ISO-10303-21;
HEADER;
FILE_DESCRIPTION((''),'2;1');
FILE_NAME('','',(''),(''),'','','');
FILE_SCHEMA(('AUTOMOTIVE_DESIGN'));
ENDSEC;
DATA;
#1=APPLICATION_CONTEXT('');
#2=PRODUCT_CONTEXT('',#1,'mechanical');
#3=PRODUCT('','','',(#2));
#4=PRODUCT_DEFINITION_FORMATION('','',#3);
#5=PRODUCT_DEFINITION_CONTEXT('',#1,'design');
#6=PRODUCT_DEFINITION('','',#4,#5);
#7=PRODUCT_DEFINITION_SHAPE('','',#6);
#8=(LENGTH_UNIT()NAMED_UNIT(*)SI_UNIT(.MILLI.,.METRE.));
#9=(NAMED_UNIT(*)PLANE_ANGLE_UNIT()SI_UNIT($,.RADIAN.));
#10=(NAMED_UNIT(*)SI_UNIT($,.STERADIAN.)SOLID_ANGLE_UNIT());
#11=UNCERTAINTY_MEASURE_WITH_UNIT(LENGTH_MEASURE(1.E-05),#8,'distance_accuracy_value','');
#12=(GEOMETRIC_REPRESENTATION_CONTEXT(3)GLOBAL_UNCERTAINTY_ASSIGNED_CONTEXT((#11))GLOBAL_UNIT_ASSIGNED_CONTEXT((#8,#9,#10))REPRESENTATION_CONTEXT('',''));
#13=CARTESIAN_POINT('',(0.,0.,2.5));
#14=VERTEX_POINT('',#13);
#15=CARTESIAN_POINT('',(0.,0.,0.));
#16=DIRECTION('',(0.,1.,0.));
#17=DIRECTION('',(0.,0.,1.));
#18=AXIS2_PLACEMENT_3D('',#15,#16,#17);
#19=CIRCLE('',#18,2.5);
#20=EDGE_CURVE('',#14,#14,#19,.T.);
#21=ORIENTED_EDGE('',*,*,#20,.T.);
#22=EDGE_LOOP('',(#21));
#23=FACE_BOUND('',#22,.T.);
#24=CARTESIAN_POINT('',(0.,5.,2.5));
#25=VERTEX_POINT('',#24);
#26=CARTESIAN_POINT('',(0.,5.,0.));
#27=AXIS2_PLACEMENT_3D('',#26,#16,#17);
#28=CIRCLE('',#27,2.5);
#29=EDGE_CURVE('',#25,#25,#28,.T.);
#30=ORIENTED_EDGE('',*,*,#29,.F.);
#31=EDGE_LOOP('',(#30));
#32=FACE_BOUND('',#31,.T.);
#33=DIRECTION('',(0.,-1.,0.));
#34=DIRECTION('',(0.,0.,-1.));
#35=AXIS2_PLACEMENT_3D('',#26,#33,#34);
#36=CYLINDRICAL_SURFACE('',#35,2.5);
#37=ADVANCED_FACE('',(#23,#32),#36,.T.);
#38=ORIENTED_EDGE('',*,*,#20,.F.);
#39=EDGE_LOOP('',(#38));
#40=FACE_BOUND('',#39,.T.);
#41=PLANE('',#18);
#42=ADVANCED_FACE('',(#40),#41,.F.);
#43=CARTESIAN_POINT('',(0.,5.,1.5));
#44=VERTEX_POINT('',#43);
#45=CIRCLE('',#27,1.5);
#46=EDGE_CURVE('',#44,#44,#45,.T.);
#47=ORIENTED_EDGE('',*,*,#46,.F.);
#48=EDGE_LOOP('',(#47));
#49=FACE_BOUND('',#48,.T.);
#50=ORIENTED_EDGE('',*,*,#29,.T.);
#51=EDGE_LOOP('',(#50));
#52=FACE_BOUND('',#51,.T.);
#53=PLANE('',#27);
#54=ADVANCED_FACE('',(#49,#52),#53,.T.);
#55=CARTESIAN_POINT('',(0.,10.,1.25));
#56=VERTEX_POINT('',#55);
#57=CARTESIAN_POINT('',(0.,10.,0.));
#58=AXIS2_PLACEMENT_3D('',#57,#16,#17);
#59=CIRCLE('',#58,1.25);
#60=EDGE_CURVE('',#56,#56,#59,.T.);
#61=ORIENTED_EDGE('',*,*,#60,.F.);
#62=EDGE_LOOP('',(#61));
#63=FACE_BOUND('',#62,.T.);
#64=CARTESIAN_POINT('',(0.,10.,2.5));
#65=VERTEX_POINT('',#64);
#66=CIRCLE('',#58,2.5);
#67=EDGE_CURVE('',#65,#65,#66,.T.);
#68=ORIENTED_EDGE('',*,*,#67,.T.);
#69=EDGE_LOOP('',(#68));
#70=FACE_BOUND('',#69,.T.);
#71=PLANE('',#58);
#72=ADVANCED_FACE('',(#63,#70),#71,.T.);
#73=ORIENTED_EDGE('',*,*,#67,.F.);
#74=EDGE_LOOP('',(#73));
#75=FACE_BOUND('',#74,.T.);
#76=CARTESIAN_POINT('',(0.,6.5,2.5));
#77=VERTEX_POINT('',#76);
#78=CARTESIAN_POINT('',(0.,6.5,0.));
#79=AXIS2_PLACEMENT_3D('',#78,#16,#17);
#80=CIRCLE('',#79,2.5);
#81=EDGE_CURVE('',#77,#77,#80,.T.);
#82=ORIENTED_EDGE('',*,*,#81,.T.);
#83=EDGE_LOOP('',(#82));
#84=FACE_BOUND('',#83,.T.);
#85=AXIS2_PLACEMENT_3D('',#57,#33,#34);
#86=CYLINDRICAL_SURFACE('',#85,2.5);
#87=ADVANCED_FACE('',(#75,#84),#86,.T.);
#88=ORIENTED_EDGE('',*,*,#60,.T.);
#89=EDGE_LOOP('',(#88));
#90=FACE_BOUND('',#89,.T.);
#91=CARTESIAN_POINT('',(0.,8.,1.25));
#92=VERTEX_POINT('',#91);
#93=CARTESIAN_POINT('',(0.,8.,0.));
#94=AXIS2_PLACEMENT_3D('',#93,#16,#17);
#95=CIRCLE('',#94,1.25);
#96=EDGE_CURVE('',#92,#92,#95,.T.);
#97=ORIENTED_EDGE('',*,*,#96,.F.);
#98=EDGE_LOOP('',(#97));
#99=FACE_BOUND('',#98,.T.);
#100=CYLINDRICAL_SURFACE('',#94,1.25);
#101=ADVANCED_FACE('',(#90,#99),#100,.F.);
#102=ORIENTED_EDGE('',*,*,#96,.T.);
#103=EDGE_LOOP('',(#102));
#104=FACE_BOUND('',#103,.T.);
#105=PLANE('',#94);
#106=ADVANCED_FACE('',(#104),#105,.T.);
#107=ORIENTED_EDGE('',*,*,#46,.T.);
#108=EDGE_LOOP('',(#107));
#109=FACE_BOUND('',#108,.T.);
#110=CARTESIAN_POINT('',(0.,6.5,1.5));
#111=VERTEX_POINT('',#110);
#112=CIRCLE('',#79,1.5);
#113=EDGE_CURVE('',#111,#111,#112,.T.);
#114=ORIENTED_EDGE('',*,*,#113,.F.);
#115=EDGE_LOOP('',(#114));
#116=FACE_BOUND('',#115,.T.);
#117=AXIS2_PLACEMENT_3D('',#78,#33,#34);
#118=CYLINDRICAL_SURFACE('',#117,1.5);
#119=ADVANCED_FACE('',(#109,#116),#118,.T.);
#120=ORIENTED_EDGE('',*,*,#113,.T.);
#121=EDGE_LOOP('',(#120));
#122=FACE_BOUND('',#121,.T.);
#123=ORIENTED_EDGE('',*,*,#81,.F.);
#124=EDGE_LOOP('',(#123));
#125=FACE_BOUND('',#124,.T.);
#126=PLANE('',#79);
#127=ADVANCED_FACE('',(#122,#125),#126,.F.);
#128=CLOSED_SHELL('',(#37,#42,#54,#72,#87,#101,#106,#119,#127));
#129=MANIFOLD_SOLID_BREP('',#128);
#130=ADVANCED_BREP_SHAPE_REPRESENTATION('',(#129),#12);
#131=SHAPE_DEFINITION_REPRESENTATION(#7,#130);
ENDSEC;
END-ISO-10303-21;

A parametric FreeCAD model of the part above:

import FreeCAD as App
import Part
import Sketcher
Q = App.Units.Quantity

doc = App.newDocument("Part")
body = doc.addObject("PartDesign::Body", "Body")

# Sketch on XZ plane
sketch1 = doc.addObject("Sketcher::SketchObject", "Sketch")
body.addObject(sketch1)
sketch1.AttachmentSupport = (doc.XZ_Plane, [""])
sketch1.MapMode = "FlatFace"
sketch1.addGeometry(Part.Circle(App.Vector(0, 0, 0), App.Vector(0, 0, 1), 2.5), False)
sketch1.addConstraint([
    Sketcher.Constraint("Coincident", 0, 3, -1, 1),
    Sketcher.Constraint("Diameter", 0, Q("5 mm")),
])
pad1 = doc.addObject("PartDesign::Pad", "Pad")
body.addObject(pad1)
pad1.Profile = sketch1
pad1.Length = 5
pad1.Reversed = True

# Sketch on XZ plane
sketch2 = doc.addObject("Sketcher::SketchObject", "Sketch001")
body.addObject(sketch2)
sketch2.AttachmentSupport = (doc.XZ_Plane, [""])
sketch2.MapMode = "FlatFace"
sketch2.AttachmentOffset = App.Placement(App.Vector(0, 0, -5), App.Rotation())
sketch2.addGeometry(Part.Circle(App.Vector(0, 0, 0), App.Vector(0, 0, 1), 1.5), False)
sketch2.addConstraint([
    Sketcher.Constraint("Coincident", 0, 3, -1, 1),
    Sketcher.Constraint("Diameter", 0, Q("3 mm")),
])
pad2 = doc.addObject("PartDesign::Pad", "Pad001")
body.addObject(pad2)
pad2.Profile = sketch2
pad2.Length = 1.5
pad2.Reversed = True

# Sketch on XZ plane
sketch3 = doc.addObject("Sketcher::SketchObject", "Sketch002")
body.addObject(sketch3)
sketch3.AttachmentSupport = (doc.XZ_Plane, [""])
sketch3.MapMode = "FlatFace"
sketch3.AttachmentOffset = App.Placement(App.Vector(0, 0, -6.5), App.Rotation())
sketch3.addGeometry(Part.Circle(App.Vector(0, 0, 0), App.Vector(0, 0, 1), 2.5), False)
sketch3.addConstraint([
    Sketcher.Constraint("Coincident", 0, 3, -1, 1),
    Sketcher.Constraint("Diameter", 0, Q("5 mm")),
])
pad3 = doc.addObject("PartDesign::Pad", "Pad002")
body.addObject(pad3)
pad3.Profile = sketch3
pad3.Length = 3.5
pad3.Reversed = True

# Sketch on XZ plane
sketch4 = doc.addObject("Sketcher::SketchObject", "Sketch003")
body.addObject(sketch4)
sketch4.AttachmentSupport = (doc.XZ_Plane, [""])
sketch4.MapMode = "FlatFace"
sketch4.AttachmentOffset = App.Placement(App.Vector(0, 0, -10), App.Rotation())
sketch4.addGeometry(Part.Circle(App.Vector(0, 0, 0), App.Vector(0, 0, 1), 1.2), False)
sketch4.addConstraint([
    Sketcher.Constraint("Coincident", 0, 3, -1, 1),
    Sketcher.Constraint("Diameter", 0, Q("2.5 mm")),
])
pocket1 = doc.addObject("PartDesign::Pocket", "Pocket")
body.addObject(pocket1)
pocket1.Profile = sketch4
pocket1.Length = 2
pocket1.Reversed = True

doc.recompute()
